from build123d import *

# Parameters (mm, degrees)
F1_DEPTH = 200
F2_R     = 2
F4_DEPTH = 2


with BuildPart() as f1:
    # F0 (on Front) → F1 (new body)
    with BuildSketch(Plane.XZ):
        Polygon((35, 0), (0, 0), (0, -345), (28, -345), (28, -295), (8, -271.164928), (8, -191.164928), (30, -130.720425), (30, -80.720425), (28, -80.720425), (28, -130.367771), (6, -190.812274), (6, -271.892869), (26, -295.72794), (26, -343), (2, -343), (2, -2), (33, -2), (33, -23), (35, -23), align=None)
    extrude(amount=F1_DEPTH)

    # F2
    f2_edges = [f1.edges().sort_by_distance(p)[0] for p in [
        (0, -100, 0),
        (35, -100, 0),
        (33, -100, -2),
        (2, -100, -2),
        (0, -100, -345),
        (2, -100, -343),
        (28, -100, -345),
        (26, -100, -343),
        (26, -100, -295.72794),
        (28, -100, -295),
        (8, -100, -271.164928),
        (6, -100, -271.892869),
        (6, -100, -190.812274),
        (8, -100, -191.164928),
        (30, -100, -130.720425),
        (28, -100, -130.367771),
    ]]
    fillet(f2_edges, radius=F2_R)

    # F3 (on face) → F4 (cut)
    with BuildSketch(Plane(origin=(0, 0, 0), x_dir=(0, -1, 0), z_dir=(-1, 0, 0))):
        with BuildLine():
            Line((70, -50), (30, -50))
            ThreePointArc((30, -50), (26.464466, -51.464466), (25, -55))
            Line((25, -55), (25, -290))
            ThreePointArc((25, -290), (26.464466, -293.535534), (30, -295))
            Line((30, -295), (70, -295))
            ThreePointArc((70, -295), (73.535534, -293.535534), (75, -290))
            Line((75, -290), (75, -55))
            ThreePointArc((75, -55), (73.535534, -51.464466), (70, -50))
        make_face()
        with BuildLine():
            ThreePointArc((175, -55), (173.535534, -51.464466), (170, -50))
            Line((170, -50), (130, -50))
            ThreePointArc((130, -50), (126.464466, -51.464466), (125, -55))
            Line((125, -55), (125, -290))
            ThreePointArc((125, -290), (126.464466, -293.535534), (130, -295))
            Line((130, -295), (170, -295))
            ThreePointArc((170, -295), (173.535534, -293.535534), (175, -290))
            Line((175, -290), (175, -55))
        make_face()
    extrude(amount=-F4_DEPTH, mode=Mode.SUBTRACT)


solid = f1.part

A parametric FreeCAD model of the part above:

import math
import FreeCAD as App
import Part
import Sketcher

V = App.Vector
Q = App.Units.Quantity


def edges_at(feature, points):
    """Names of the edges that pass closest to the given points."""
    edges = feature.Shape.Edges
    near = lambda p: min(range(len(edges)), key=lambda i: edges[i].distToShape(Part.Vertex(*p))[0])
    return sorted({f"Edge{near(p) + 1}" for p in points})


def add_polygon(sketch, points):
    """Adds a closed chain of lines whose ends are joined by coincident constraints."""
    first, n = sketch.GeometryCount, len(points)
    for a, b in zip(points, points[1:] + points[:1]):
        sketch.addGeometry(Part.LineSegment(App.Vector(*a, 0), App.Vector(*b, 0)), False)
    for i in range(n):
        sketch.addConstraint(Sketcher.Constraint("Coincident", first + i, 2, first + (i + 1) % n, 1))

doc = App.newDocument("Part")
body = doc.addObject("PartDesign::Body", "Body")

# Sketch on XZ plane
sketch1 = body.newObject("Sketcher::SketchObject", "Sketch")
sketch1.AttachmentSupport = (doc.getObject("XZ_Plane"), [""])
sketch1.MapMode = "FlatFace"
add_polygon(sketch1, [(35, 0), (0, 0), (0, -345), (28, -345), (28, -295), (8, -271.164928), (8, -191.164928), (30, -130.720425), (30, -80.720425), (28, -80.720425), (28, -130.367771), (6, -190.812274), (6, -271.892869), (26, -295.72794), (26, -343), (2, -343), (2, -2), (33, -2), (33, -23), (35, -23)])  # lines 0-19
sketch1.addConstraint([
    Sketcher.Constraint("Horizontal", 0),
    Sketcher.Constraint("Vertical", 1),
    Sketcher.Constraint("Horizontal", 2),
    Sketcher.Constraint("Vertical", 3),
    Sketcher.Constraint("Vertical", 5),
    Sketcher.Constraint("Vertical", 7),
    Sketcher.Constraint("Horizontal", 8),
    Sketcher.Constraint("Vertical", 9),
    Sketcher.Constraint("Vertical", 11),
    Sketcher.Constraint("Vertical", 13),
    Sketcher.Constraint("Horizontal", 14),
    Sketcher.Constraint("Vertical", 15),
    Sketcher.Constraint("Horizontal", 16),
    Sketcher.Constraint("Vertical", 17),
    Sketcher.Constraint("Horizontal", 18),
    Sketcher.Constraint("Vertical", 19),
    Sketcher.Constraint("Coincident", 0, 2, -1, 1),
    Sketcher.Constraint("Parallel", 6, 10),
    Sketcher.Constraint("Parallel", 4, 12),
    Sketcher.Constraint("Vertical", 3, 2, 8, 2),
    Sketcher.Constraint("Equal", 8, 18),
    Sketcher.Constraint("Equal", 3, 7),
    Sketcher.Constraint("Equal", 6, 10),
    Sketcher.Constraint("Equal", 4, 12),
    Sketcher.Constraint("DistanceX", 0, 2, 0, 1, Q("35 mm")),
    Sketcher.Constraint("DistanceX", 2, 1, 2, 2, Q("28 mm")),
    Sketcher.Constraint("DistanceX", 8, 2, 8, 1, Q("2 mm")),
    Sketcher.Constraint("DistanceX", 14, 2, 14, 1, Q("24 mm")),
    Sketcher.Constraint("DistanceY", 1, 2, 1, 1, Q("345 mm")),
    Sketcher.Constraint("DistanceY", 3, 1, 3, 2, Q("50 mm")),
    Sketcher.Constraint("DistanceY", 5, 1, 5, 2, Q("80 mm")),
    Sketcher.Constraint("DistanceY", 15, 1, 15, 2, Q("341 mm")),
    Sketcher.Constraint("DistanceY", 17, 2, 17, 1, Q("21 mm")),
    Sketcher.Constraint("DistanceY", 19, 1, 19, 2, Q("23 mm")),
    Sketcher.Constraint("Angle", 4, Q("130 deg")),
    Sketcher.Constraint("Angle", 6, Q("70 deg")),
    Sketcher.Constraint("DistanceX", -1, 1, 4, 2, Q("8 mm")),
    Sketcher.Constraint("DistanceY", 13, 2, 13, 1, Q("47.27206 mm")),
    Sketcher.Constraint("DistanceY", 9, 2, 9, 1, Q("49.647346 mm")),
])
pad1 = body.newObject("PartDesign::Pad", "Pad")
pad1.Profile = sketch1
pad1.Length = 200
doc.recompute()

fillet = body.newObject("PartDesign::Fillet", "Fillet")
fillet.Base = (pad1, edges_at(pad1, [
    (0, -100, 0),
    (35, -100, 0),
    (33, -100, -2),
    (2, -100, -2),
    (0, -100, -345),
    (2, -100, -343),
    (28, -100, -345),
    (26, -100, -343),
    (26, -100, -295.728),
    (28, -100, -295),
    (8, -100, -271.165),
    (6, -100, -271.893),
    (6, -100, -190.812),
    (8, -100, -191.165),
    (30, -100, -130.72),
    (28, -100, -130.368),
]))
fillet.Radius = 2

# Sketch on YZ plane
sketch2 = body.newObject("Sketcher::SketchObject", "Sketch001")
sketch2.AttachmentSupport = (doc.getObject("YZ_Plane"), [""])
sketch2.MapMode = "FlatFace"
sketch2.addGeometry([
    Part.LineSegment(V(-70, -50, 0), V(-30, -50, 0)),  # 0
    Part.ArcOfCircle(Part.Circle(V(-30, -55, 0), V(0, 0, 1), 5), math.radians(-0.000004), math.radians(90.000004)),  # 1
    Part.LineSegment(V(-25, -55, 0), V(-25, -290, 0)),  # 2
    Part.ArcOfCircle(Part.Circle(V(-30, -290, 0), V(0, 0, 1), 5), math.radians(-90.000004), math.radians(0.000004)),  # 3
    Part.LineSegment(V(-30, -295, 0), V(-70, -295, 0)),  # 4
    Part.ArcOfCircle(Part.Circle(V(-70, -290, 0), V(0, 0, 1), 5), math.radians(179.999996), math.radians(270.000004)),  # 5
    Part.LineSegment(V(-75, -290, 0), V(-75, -55, 0)),  # 6
    Part.ArcOfCircle(Part.Circle(V(-70, -55, 0), V(0, 0, 1), 5), math.radians(89.999996), math.radians(180.000004)),  # 7
    Part.ArcOfCircle(Part.Circle(V(-170, -55, 0), V(0, 0, 1), 5), math.radians(89.999996), math.radians(180.000004)),  # 8
    Part.LineSegment(V(-170, -50, 0), V(-130, -50, 0)),  # 9
    Part.ArcOfCircle(Part.Circle(V(-130, -55, 0), V(0, 0, 1), 5), math.radians(-0.000004), math.radians(90.000004)),  # 10
    Part.LineSegment(V(-125, -55, 0), V(-125, -290, 0)),  # 11
    Part.ArcOfCircle(Part.Circle(V(-130, -290, 0), V(0, 0, 1), 5), math.radians(-90.000004), math.radians(0.000004)),  # 12
    Part.LineSegment(V(-130, -295, 0), V(-170, -295, 0)),  # 13
    Part.ArcOfCircle(Part.Circle(V(-170, -290, 0), V(0, 0, 1), 5), math.radians(179.999996), math.radians(270.000004)),  # 14
    Part.LineSegment(V(-175, -290, 0), V(-175, -55, 0)),  # 15
], False)
sketch2.addConstraint([
    Sketcher.Constraint("Tangent", 0, 2, 1, 2),
    Sketcher.Constraint("Tangent", 1, 1, 2, 1),
    Sketcher.Constraint("Tangent", 2, 2, 3, 2),
    Sketcher.Constraint("Tangent", 3, 1, 4, 1),
    Sketcher.Constraint("Tangent", 4, 2, 5, 2),
    Sketcher.Constraint("Tangent", 5, 1, 6, 1),
    Sketcher.Constraint("Tangent", 6, 2, 7, 2),
    Sketcher.Constraint("Tangent", 7, 1, 0, 1),
    Sketcher.Constraint("Tangent", 8, 1, 9, 1),
    Sketcher.Constraint("Tangent", 9, 2, 10, 2),
    Sketcher.Constraint("Tangent", 10, 1, 11, 1),
    Sketcher.Constraint("Tangent", 11, 2, 12, 2),
    Sketcher.Constraint("Tangent", 12, 1, 13, 1),
    Sketcher.Constraint("Tangent", 13, 2, 14, 2),
    Sketcher.Constraint("Tangent", 14, 1, 15, 1),
    Sketcher.Constraint("Tangent", 15, 2, 8, 2),
    Sketcher.Constraint("Horizontal", 0),
    Sketcher.Constraint("Vertical", 2),
    Sketcher.Constraint("Horizontal", 4),
    Sketcher.Constraint("Vertical", 6),
    Sketcher.Constraint("Horizontal", 9),
    Sketcher.Constraint("Vertical", 11),
    Sketcher.Constraint("Horizontal", 13),
    Sketcher.Constraint("Vertical", 15),
    Sketcher.Constraint("Equal", 1, 3),
    Sketcher.Constraint("Equal", 3, 5),
    Sketcher.Constraint("Equal", 5, 7),
    Sketcher.Constraint("Equal", 7, 8),
    Sketcher.Constraint("Equal", 8, 10),
    Sketcher.Constraint("Equal", 10, 12),
    Sketcher.Constraint("Equal", 12, 14),
    Sketcher.Constraint("Horizontal", 7, 3, 8, 3),
    Sketcher.Constraint("Horizontal", 5, 3, 12, 3),
    Sketcher.Constraint("Equal", 4, 9),
    Sketcher.Constraint("Radius", 1, Q("5 mm")),
    Sketcher.Constraint("DistanceX", 0, 1, 0, 2, Q("40 mm")),
    Sketcher.Constraint("DistanceY", 2, 2, 2, 1, Q("235 mm")),
    Sketcher.Constraint("DistanceX", 1, 3, -1, 1, Q("30 mm")),
    Sketcher.Constraint("DistanceY", 1, 3, -1, 1, Q("55 mm")),
    Sketcher.Constraint("DistanceX", 8, 3, -1, 1, Q("170 mm")),
])
pocket1 = body.newObject("PartDesign::Pocket", "Pocket")
pocket1.Profile = sketch2
pocket1.Length = 2
pocket1.Reversed = True

doc.recompute()
